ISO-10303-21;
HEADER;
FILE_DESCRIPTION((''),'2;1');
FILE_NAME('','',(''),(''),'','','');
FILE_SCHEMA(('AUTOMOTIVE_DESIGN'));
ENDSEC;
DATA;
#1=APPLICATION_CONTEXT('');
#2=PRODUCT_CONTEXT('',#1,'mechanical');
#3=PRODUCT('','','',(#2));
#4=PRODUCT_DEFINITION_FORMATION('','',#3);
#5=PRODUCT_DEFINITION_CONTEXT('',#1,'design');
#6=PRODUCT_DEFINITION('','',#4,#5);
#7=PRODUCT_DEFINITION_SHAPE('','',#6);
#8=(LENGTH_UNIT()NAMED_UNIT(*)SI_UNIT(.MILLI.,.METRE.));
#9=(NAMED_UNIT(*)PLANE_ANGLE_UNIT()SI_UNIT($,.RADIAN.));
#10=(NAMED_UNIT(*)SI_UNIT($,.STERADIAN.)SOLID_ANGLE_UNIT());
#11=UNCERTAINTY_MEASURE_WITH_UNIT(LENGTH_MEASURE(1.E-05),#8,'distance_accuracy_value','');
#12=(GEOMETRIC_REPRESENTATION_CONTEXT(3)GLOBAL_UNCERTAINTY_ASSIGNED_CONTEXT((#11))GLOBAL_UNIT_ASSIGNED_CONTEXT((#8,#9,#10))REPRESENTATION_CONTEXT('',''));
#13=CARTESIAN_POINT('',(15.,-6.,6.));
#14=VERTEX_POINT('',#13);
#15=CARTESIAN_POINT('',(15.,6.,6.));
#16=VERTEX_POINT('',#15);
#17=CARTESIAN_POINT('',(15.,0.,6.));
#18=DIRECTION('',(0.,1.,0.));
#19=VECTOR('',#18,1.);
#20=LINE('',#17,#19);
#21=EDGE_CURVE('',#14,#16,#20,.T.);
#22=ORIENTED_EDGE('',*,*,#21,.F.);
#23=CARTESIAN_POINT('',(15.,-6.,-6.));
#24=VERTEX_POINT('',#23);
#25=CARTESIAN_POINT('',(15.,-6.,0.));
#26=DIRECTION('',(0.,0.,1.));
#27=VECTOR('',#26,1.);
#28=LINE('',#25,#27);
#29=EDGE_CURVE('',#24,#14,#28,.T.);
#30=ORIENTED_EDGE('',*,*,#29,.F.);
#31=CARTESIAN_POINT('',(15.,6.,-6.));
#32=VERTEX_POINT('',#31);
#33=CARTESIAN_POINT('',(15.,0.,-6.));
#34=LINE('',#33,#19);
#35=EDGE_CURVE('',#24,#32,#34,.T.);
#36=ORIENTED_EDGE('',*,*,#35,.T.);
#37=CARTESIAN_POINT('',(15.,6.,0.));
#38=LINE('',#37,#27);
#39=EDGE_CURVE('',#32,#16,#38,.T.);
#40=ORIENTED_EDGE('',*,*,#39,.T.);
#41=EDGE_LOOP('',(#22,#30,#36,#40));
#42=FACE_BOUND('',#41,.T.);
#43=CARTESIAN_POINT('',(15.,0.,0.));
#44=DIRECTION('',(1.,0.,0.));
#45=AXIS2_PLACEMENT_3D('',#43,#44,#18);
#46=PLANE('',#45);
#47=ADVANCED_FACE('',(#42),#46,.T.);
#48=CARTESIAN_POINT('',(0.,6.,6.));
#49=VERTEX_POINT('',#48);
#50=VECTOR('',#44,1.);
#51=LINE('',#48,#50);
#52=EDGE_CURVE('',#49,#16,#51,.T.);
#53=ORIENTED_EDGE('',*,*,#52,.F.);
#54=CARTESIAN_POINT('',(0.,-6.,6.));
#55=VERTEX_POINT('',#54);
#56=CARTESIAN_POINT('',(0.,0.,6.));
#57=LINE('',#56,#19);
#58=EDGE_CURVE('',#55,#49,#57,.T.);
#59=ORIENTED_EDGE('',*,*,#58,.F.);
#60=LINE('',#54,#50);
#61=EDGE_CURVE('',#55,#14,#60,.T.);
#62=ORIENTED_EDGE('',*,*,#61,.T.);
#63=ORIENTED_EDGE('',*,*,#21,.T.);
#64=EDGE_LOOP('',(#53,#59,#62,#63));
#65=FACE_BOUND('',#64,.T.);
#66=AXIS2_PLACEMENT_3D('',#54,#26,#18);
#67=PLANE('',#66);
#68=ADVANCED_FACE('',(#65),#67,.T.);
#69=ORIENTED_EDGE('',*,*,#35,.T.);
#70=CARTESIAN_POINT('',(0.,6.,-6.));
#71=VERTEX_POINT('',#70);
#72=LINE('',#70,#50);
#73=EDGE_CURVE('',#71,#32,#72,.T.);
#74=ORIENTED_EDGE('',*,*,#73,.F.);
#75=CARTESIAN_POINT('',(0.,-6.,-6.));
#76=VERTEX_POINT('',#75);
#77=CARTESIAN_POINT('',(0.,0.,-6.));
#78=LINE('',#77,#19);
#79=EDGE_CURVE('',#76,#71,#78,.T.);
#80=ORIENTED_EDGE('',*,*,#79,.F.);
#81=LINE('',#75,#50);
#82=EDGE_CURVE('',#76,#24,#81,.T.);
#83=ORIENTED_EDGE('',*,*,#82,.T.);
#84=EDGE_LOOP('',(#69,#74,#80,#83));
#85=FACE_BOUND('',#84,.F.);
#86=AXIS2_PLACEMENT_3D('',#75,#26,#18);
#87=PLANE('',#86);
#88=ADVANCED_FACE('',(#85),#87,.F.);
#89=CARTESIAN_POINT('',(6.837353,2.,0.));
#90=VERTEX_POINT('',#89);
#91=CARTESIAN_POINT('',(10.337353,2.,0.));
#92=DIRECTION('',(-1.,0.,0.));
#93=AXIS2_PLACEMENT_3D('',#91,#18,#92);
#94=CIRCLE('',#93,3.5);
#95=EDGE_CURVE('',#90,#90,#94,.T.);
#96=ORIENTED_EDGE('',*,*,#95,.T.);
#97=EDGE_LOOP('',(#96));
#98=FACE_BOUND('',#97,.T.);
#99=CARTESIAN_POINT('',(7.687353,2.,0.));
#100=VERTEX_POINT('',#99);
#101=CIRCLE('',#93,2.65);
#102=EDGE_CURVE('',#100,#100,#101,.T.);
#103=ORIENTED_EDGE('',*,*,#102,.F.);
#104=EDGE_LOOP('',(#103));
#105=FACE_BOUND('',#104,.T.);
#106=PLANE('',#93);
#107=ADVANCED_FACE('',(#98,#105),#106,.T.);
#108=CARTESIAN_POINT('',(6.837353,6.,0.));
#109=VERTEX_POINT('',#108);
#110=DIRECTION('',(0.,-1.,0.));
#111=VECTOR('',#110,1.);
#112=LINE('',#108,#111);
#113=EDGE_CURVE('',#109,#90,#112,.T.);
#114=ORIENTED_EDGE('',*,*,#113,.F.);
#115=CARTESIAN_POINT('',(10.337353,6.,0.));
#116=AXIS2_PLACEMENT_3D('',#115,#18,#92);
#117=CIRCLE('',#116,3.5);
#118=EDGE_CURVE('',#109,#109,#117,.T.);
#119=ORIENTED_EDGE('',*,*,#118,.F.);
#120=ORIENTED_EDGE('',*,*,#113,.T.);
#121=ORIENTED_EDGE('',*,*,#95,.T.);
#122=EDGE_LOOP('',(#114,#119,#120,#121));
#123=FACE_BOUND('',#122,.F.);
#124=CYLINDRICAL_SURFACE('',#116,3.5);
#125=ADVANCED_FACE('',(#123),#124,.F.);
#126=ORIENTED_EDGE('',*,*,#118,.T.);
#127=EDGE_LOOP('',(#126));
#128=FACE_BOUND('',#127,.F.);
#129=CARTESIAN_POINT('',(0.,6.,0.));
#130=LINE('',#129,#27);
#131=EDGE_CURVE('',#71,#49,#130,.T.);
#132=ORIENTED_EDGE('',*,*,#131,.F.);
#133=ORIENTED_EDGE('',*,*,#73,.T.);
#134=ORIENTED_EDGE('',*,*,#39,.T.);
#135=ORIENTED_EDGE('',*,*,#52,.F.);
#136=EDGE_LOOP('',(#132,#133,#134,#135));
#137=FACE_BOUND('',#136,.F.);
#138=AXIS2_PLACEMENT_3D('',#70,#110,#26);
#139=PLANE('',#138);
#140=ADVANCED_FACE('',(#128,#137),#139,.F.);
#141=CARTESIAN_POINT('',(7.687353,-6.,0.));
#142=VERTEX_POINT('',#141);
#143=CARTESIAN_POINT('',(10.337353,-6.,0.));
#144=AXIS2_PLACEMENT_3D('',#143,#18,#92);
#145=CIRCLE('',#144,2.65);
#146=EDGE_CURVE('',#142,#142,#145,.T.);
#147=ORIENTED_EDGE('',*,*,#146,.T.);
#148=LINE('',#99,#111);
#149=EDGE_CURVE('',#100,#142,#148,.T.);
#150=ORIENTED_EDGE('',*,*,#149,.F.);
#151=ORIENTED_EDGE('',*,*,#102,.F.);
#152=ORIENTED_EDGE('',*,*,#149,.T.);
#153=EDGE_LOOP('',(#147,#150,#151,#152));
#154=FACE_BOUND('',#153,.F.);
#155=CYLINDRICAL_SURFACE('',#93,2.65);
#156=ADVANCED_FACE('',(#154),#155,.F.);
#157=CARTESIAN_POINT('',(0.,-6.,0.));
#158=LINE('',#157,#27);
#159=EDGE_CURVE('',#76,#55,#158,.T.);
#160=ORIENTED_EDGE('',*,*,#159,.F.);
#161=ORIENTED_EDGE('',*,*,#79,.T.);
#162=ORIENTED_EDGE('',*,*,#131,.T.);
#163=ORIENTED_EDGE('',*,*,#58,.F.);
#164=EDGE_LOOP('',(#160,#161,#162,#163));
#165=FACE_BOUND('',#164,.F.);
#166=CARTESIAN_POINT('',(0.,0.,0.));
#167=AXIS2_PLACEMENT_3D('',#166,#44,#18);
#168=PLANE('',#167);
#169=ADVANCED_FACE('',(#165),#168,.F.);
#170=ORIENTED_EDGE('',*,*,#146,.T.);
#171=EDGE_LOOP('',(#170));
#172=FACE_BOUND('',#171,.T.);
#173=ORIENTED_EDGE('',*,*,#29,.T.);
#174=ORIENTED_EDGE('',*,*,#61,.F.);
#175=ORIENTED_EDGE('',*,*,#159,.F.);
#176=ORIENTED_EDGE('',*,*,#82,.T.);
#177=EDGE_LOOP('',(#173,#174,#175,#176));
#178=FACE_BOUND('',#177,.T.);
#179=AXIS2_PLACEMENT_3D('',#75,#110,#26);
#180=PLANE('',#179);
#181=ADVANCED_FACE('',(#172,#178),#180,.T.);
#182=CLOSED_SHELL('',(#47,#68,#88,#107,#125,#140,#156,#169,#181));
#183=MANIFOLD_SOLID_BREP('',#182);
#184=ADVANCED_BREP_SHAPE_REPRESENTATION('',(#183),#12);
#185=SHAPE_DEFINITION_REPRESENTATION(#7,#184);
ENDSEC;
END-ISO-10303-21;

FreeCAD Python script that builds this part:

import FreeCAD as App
import Part
import Sketcher
from FreeCAD import Vector
Q = App.Units.Quantity


def add_polygon(sketch, points):
    """Adds a closed chain of lines whose ends are joined by coincident constraints."""
    first, n = sketch.GeometryCount, len(points)
    for a, b in zip(points, points[1:] + points[:1]):
        sketch.addGeometry(Part.LineSegment(App.Vector(*a, 0), App.Vector(*b, 0)), False)
    for i in range(n):
        sketch.addConstraint(Sketcher.Constraint("Coincident", first + i, 2, first + (i + 1) % n, 1))

doc = App.newDocument("Part")
body = doc.addObject("PartDesign::Body", "Body")

# Sketch on YZ plane
sketch1 = body.newObject("Sketcher::SketchObject", "Sketch")
sketch1.AttachmentSupport = (doc.getObject("YZ_Plane"), [""])
sketch1.MapMode = "FlatFace"
add_polygon(sketch1, [(-6, 6), (-6, -6), (6, -6), (6, 6)])  # lines 0-3
sketch1.addConstraint([
    Sketcher.Constraint("Vertical", 0),
    Sketcher.Constraint("Horizontal", 1),
    Sketcher.Constraint("Vertical", 2),
    Sketcher.Constraint("Horizontal", 3),
    Sketcher.Constraint("Symmetric", 0, 2, 2, 2, -1, 1),
    Sketcher.Constraint("Equal", 3, 0),
    Sketcher.Constraint("DistanceX", 1, 1, 1, 2, Q("12 mm")),
])
pad1 = body.newObject("PartDesign::Pad", "Pad")
pad1.Profile = sketch1
pad1.Length = 15

# Sketch on XZ plane
sketch2 = body.newObject("Sketcher::SketchObject", "Sketch001")
sketch2.AttachmentSupport = (doc.getObject("XZ_Plane"), [""])
sketch2.MapMode = "FlatFace"
sketch2.AttachmentOffset = App.Placement(Vector(0, 0, -6), App.Rotation())
sketch2.addGeometry(Part.Circle(Vector(10.3, 0, 0), Vector(0, 0, 1), 3.5), False)
sketch2.addConstraint([
    Sketcher.Constraint("PointOnObject", 0, 3, -1),
    Sketcher.Constraint("Diameter", 0, Q("7 mm")),
    Sketcher.Constraint("DistanceX", -1, 1, 0, 3, Q("10.337353 mm")),
])
pocket1 = body.newObject("PartDesign::Pocket", "Pocket")
pocket1.Profile = sketch2
pocket1.Length = 4
pocket1.Reversed = True

# Sketch on XZ plane
sketch3 = body.newObject("Sketcher::SketchObject", "Sketch002")
sketch3.AttachmentSupport = (doc.getObject("XZ_Plane"), [""])
sketch3.MapMode = "FlatFace"
sketch3.AttachmentOffset = App.Placement(Vector(0, 0, -2), App.Rotation())
sketch3.addGeometry(Part.Circle(Vector(10.3, 0, 0), Vector(0, 0, 1), 2.6), False)
sketch3.addConstraint([
    Sketcher.Constraint("PointOnObject", 0, 3, -1),
    Sketcher.Constraint("Diameter", 0, Q("5.3 mm")),
    Sketcher.Constraint("DistanceX", -1, 1, 0, 3, Q("10.337353 mm")),
])
pocket2 = body.newObject("PartDesign::Pocket", "Pocket001")
pocket2.Profile = sketch3
pocket2.Length = 20
pocket2.Reversed = True

doc.recompute()
